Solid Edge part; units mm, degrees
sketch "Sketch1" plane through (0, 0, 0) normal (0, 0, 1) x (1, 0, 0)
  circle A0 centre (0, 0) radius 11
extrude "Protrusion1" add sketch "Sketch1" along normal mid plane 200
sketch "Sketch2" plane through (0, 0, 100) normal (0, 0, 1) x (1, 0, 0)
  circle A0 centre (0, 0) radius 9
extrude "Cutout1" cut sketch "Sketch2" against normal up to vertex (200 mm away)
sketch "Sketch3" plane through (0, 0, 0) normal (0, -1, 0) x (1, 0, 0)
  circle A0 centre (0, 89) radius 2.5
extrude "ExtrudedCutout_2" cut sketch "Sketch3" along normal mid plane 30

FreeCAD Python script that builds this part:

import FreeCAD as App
import Part
import Sketcher
Q = App.Units.Quantity

doc = App.newDocument("Part")
body = doc.addObject("PartDesign::Body", "Body")

# Sketch on XY plane
sketch1 = doc.addObject("Sketcher::SketchObject", "Sketch")
body.addObject(sketch1)
sketch1.AttachmentSupport = (doc.XY_Plane, [""])
sketch1.MapMode = "FlatFace"
sketch1.addGeometry(Part.Circle(App.Vector(0, 0, 0), App.Vector(0, 0, 1), 11), False)
sketch1.addConstraint([
    Sketcher.Constraint("Coincident", 0, 3, -1, 1),
    Sketcher.Constraint("Diameter", 0, Q("22 mm")),
])
pad1 = doc.addObject("PartDesign::Pad", "Pad")
body.addObject(pad1)
pad1.Profile = sketch1
pad1.Length = 200
pad1.Midplane = True

# Sketch on XY plane
sketch2 = doc.addObject("Sketcher::SketchObject", "Sketch001")
body.addObject(sketch2)
sketch2.AttachmentSupport = (doc.XY_Plane, [""])
sketch2.MapMode = "FlatFace"
sketch2.AttachmentOffset = App.Placement(App.Vector(0, 0, 100), App.Rotation())
sketch2.addGeometry(Part.Circle(App.Vector(0, 0, 0), App.Vector(0, 0, 1), 9), False)
sketch2.addConstraint([
    Sketcher.Constraint("Coincident", 0, 3, -1, 1),
    Sketcher.Constraint("Diameter", 0, Q("18 mm")),
])
pocket1 = doc.addObject("PartDesign::Pocket", "Pocket")
body.addObject(pocket1)
pocket1.Profile = sketch2
pocket1.Length = 200

# Sketch on XZ plane
sketch3 = doc.addObject("Sketcher::SketchObject", "Sketch002")
body.addObject(sketch3)
sketch3.AttachmentSupport = (doc.XZ_Plane, [""])
sketch3.MapMode = "FlatFace"
sketch3.addGeometry(Part.Circle(App.Vector(0, 89, 0), App.Vector(0, 0, 1), 2.5), False)
sketch3.addConstraint([
    Sketcher.Constraint("PointOnObject", 0, 3, -2),
    Sketcher.Constraint("Diameter", 0, Q("5 mm")),
    Sketcher.Constraint("DistanceY", -1, 1, 0, 3, Q("89 mm")),
])
pocket2 = doc.addObject("PartDesign::Pocket", "Pocket001")
body.addObject(pocket2)
pocket2.Profile = sketch3
pocket2.Length = 30
pocket2.Midplane = True

doc.recompute()
